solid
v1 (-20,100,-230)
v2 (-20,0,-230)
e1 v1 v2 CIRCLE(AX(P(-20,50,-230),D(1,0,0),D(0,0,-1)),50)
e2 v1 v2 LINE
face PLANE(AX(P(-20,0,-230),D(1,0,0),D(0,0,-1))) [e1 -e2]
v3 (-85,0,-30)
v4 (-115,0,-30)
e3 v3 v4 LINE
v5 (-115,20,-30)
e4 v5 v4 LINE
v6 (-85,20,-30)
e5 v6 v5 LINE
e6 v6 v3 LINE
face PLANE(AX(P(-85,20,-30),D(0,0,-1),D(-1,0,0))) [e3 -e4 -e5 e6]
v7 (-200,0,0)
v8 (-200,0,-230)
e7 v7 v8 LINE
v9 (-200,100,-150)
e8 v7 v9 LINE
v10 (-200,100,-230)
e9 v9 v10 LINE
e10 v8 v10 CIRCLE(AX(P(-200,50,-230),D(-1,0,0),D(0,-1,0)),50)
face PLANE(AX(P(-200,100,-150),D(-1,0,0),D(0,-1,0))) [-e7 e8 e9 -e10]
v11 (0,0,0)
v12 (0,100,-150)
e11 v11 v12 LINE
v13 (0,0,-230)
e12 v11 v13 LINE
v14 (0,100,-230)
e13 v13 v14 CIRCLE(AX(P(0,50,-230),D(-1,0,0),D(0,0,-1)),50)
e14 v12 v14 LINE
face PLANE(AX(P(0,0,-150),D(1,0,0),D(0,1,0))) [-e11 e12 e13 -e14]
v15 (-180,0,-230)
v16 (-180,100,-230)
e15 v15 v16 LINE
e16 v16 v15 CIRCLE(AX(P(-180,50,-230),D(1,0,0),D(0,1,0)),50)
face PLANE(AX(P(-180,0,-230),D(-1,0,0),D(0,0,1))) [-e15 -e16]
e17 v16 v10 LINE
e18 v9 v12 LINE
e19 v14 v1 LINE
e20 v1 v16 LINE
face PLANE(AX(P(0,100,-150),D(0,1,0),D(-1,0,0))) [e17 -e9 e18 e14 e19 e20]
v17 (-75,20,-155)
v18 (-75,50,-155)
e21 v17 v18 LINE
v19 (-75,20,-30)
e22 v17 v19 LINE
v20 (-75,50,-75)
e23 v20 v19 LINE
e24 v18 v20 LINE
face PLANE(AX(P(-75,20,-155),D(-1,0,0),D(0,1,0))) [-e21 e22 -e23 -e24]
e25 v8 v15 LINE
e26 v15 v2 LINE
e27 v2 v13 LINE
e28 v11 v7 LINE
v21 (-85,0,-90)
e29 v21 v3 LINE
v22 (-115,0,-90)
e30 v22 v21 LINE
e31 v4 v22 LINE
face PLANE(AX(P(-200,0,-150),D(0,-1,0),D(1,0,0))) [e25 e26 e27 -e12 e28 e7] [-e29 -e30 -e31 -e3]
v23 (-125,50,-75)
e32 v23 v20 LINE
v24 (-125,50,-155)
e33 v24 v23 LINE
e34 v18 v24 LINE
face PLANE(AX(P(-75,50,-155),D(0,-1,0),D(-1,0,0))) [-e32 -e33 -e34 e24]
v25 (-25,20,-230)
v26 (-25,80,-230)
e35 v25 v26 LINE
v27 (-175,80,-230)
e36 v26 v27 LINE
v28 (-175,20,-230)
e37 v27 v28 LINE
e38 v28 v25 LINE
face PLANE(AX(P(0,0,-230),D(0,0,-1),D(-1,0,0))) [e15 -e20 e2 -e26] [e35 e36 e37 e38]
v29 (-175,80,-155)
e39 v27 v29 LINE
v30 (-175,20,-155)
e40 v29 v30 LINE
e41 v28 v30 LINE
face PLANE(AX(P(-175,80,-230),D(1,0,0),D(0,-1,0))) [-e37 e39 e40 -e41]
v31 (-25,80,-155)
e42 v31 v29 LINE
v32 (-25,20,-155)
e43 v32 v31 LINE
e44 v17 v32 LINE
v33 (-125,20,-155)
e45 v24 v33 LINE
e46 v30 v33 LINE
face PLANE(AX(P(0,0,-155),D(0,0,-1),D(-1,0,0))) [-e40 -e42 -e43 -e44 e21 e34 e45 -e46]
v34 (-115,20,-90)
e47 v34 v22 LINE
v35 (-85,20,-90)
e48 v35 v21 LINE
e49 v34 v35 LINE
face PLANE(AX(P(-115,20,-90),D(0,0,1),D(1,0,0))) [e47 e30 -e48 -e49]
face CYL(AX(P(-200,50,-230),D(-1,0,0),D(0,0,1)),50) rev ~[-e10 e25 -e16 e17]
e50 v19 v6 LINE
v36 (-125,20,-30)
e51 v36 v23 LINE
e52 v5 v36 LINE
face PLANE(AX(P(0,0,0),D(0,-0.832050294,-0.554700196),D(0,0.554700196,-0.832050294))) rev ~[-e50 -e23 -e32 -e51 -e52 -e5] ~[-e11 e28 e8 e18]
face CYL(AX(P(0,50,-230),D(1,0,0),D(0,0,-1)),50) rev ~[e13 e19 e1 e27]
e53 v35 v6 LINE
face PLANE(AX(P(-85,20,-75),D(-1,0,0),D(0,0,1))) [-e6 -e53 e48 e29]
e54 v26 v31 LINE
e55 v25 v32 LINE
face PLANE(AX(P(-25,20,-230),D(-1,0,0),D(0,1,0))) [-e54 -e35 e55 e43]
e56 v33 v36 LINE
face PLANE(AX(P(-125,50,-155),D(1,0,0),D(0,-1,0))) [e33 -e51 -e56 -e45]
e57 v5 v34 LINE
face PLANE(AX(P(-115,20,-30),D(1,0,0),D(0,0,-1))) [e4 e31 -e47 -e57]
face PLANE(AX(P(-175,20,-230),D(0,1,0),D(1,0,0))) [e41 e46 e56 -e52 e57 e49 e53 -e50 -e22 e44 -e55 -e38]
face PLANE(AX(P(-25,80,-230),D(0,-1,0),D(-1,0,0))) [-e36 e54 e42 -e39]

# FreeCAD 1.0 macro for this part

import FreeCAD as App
import Part
import Sketcher


def add_polygon(sketch, points):
    """Adds a closed chain of lines whose ends are joined by coincident constraints."""
    first, n = sketch.GeometryCount, len(points)
    for a, b in zip(points, points[1:] + points[:1]):
        sketch.addGeometry(Part.LineSegment(App.Vector(*a, 0), App.Vector(*b, 0)), False)
    for i in range(n):
        sketch.addConstraint(Sketcher.Constraint("Coincident", first + i, 2, first + (i + 1) % n, 1))

doc = App.newDocument("Part")
body = doc.addObject("PartDesign::Body", "Body")

sketch1 = doc.addObject("Sketcher::SketchObject", "Sketch")
body.addObject(sketch1)
sketch1.AttachmentSupport = (doc.XZ_Plane, [""])
sketch1.MapMode = "FlatFace"
add_polygon(sketch1, [(-200, 0), (0, 0), (0, -150), (-200, -150)])
sketch1.addConstraint([
    Sketcher.Constraint("Horizontal", 0),
    Sketcher.Constraint("Vertical", 1),
    Sketcher.Constraint("Horizontal", 2),
    Sketcher.Constraint("Vertical", 3),
    Sketcher.Constraint("Coincident", 0, 2, -1, 1),
    Sketcher.Constraint("DistanceX", 0, 1, 0, 2, 200.0),
    Sketcher.Constraint("DistanceY", 1, 2, 1, 1, 150.0),
])
pad1 = doc.addObject("PartDesign::Pad", "Pad")
body.addObject(pad1)
pad1.Profile = sketch1
pad1.Length = 100
pad1.Reversed = True

sketch2 = doc.addObject("Sketcher::SketchObject", "Sketch001")
body.addObject(sketch2)
sketch2.AttachmentSupport = (doc.YZ_Plane, [""])
sketch2.MapMode = "FlatFace"
add_polygon(sketch2, [(100, -150), (100, 0), (0, 0)])
sketch2.addConstraint([
    Sketcher.Constraint("Vertical", 0),
    Sketcher.Constraint("Horizontal", 1),
    Sketcher.Constraint("Coincident", 1, 2, -1, 1),
    Sketcher.Constraint("DistanceX", 1, 2, 1, 1, 100.0),
    Sketcher.Constraint("DistanceY", 0, 1, 0, 2, 150.0),
])
pocket1 = doc.addObject("PartDesign::Pocket", "Pocket")
body.addObject(pocket1)
pocket1.Profile = sketch2
pocket1.Length = 200

sketch3 = doc.addObject("Sketcher::SketchObject", "Sketch002")
body.addObject(sketch3)
sketch3.AttachmentSupport = (doc.XY_Plane, [""])
sketch3.MapMode = "FlatFace"
sketch3.AttachmentOffset = App.Placement(App.Vector(0, 0, -150), App.Rotation())
add_polygon(sketch3, [(0, 100), (0, 0), (-200, 0), (-200, 100)])
sketch3.addConstraint([
    Sketcher.Constraint("Vertical", 0),
    Sketcher.Constraint("Horizontal", 1),
    Sketcher.Constraint("Vertical", 2),
    Sketcher.Constraint("Horizontal", 3),
    Sketcher.Constraint("Coincident", 0, 2, -1, 1),
    Sketcher.Constraint("DistanceX", 1, 2, 1, 1, 200.0),
    Sketcher.Constraint("DistanceY", 0, 2, 0, 1, 100.0),
])
pad2 = doc.addObject("PartDesign::Pad", "Pad001")
body.addObject(pad2)
pad2.Profile = sketch3
pad2.Length = 80
pad2.Reversed = True

sketch4 = doc.addObject("Sketcher::SketchObject", "Sketch003")
body.addObject(sketch4)
sketch4.AttachmentSupport = (doc.XY_Plane, [""])
sketch4.MapMode = "FlatFace"
sketch4.AttachmentOffset = App.Placement(App.Vector(0, 0, -230), App.Rotation())
add_polygon(sketch4, [(-175, 80), (-25, 80), (-25, 20), (-175, 20)])
sketch4.addConstraint([
    Sketcher.Constraint("Horizontal", 0),
    Sketcher.Constraint("Vertical", 1),
    Sketcher.Constraint("Horizontal", 2),
    Sketcher.Constraint("Vertical", 3),
    Sketcher.Constraint("DistanceX", 0, 1, 0, 2, 150.0),
    Sketcher.Constraint("DistanceY", 1, 2, 1, 1, 60.0),
    Sketcher.Constraint("DistanceX", 0, 2, -1, 1, 25.0),
    Sketcher.Constraint("DistanceY", -1, 1, 1, 2, 20.0),
])
pocket2 = doc.addObject("PartDesign::Pocket", "Pocket001")
body.addObject(pocket2)
pocket2.Profile = sketch4
pocket2.Length = 75
pocket2.Reversed = True

sketch5 = doc.addObject("Sketcher::SketchObject", "Sketch004")
body.addObject(sketch5)
sketch5.AttachmentSupport = (doc.XY_Plane, [""])
sketch5.MapMode = "FlatFace"
sketch5.AttachmentOffset = App.Placement(App.Vector(0, 0, -155), App.Rotation())
add_polygon(sketch5, [(-75, 50), (-75, 20), (-125, 20), (-125, 50)])
sketch5.addConstraint([
    Sketcher.Constraint("Vertical", 0),
    Sketcher.Constraint("Horizontal", 1),
    Sketcher.Constraint("Vertical", 2),
    Sketcher.Constraint("Horizontal", 3),
    Sketcher.Constraint("DistanceX", 1, 2, 1, 1, 50.0),
    Sketcher.Constraint("DistanceY", 0, 2, 0, 1, 30.0),
    Sketcher.Constraint("DistanceY", -1, 1, 2, 2, 50.0),
    Sketcher.Constraint("DistanceX", 0, 2, -1, 1, 75.0),
])
pocket3 = doc.addObject("PartDesign::Pocket", "Pocket002")
body.addObject(pocket3)
pocket3.Profile = sketch5
pocket3.Type = "UpToFirst"
pocket3.Reversed = True

sketch6 = doc.addObject("Sketcher::SketchObject", "Sketch005")
body.addObject(sketch6)
sketch6.AttachmentSupport = (doc.XZ_Plane, [""])
sketch6.MapMode = "FlatFace"
sketch6.AttachmentOffset = App.Placement(App.Vector(0, 0, -20), App.Rotation())
add_polygon(sketch6, [(-115, -30), (-85, -30), (-85, -90), (-115, -90)])
sketch6.addConstraint([
    Sketcher.Constraint("Horizontal", 0),
    Sketcher.Constraint("Vertical", 1),
    Sketcher.Constraint("Horizontal", 2),
    Sketcher.Constraint("Vertical", 3),
    Sketcher.Constraint("DistanceX", 0, 1, 0, 2, 30.0),
    Sketcher.Constraint("DistanceY", 1, 2, 1, 1, 60.0),
    Sketcher.Constraint("DistanceY", 0, 2, -1, 1, 30.0),
    Sketcher.Constraint("DistanceX", 0, 2, -1, 1, 85.0),
])
pocket4 = doc.addObject("PartDesign::Pocket", "Pocket003")
body.addObject(pocket4)
pocket4.Profile = sketch6
pocket4.Type = "UpToFirst"
pocket4.Reversed = True

sketch7 = doc.addObject("Sketcher::SketchObject", "Sketch006")
body.addObject(sketch7)
sketch7.AttachmentSupport = (doc.YZ_Plane, [""])
sketch7.MapMode = "FlatFace"
sketch7.addGeometry(Part.Circle(App.Vector(50, -230, 0), App.Vector(0, 0, 1), 50), False)
sketch7.addConstraint([
    Sketcher.Constraint("Diameter", 0, 100.0),
    Sketcher.Constraint("DistanceX", -1, 1, 0, 3, 50.0),
    Sketcher.Constraint("DistanceY", 0, 3, -1, 1, 230.0),
])
pocket5 = doc.addObject("PartDesign::Pocket", "Pocket004")
body.addObject(pocket5)
pocket5.Profile = sketch7
pocket5.Length = 20

sketch8 = doc.addObject("Sketcher::SketchObject", "Sketch007")
body.addObject(sketch8)
sketch8.AttachmentSupport = (doc.YZ_Plane, [""])
sketch8.MapMode = "FlatFace"
sketch8.AttachmentOffset = App.Placement(App.Vector(0, 0, -200), App.Rotation())
sketch8.addGeometry(Part.Circle(App.Vector(50, -230, 0), App.Vector(0, 0, 1), 50), False)
sketch8.addConstraint([
    Sketcher.Constraint("Diameter", 0, 100.0),
    Sketcher.Constraint("DistanceX", -1, 1, 0, 3, 50.0),
    Sketcher.Constraint("DistanceY", 0, 3, -1, 1, 230.0),
])
pocket6 = doc.addObject("PartDesign::Pocket", "Pocket005")
body.addObject(pocket6)
pocket6.Profile = sketch8
pocket6.Length = 20
pocket6.Reversed = True

doc.recompute()
